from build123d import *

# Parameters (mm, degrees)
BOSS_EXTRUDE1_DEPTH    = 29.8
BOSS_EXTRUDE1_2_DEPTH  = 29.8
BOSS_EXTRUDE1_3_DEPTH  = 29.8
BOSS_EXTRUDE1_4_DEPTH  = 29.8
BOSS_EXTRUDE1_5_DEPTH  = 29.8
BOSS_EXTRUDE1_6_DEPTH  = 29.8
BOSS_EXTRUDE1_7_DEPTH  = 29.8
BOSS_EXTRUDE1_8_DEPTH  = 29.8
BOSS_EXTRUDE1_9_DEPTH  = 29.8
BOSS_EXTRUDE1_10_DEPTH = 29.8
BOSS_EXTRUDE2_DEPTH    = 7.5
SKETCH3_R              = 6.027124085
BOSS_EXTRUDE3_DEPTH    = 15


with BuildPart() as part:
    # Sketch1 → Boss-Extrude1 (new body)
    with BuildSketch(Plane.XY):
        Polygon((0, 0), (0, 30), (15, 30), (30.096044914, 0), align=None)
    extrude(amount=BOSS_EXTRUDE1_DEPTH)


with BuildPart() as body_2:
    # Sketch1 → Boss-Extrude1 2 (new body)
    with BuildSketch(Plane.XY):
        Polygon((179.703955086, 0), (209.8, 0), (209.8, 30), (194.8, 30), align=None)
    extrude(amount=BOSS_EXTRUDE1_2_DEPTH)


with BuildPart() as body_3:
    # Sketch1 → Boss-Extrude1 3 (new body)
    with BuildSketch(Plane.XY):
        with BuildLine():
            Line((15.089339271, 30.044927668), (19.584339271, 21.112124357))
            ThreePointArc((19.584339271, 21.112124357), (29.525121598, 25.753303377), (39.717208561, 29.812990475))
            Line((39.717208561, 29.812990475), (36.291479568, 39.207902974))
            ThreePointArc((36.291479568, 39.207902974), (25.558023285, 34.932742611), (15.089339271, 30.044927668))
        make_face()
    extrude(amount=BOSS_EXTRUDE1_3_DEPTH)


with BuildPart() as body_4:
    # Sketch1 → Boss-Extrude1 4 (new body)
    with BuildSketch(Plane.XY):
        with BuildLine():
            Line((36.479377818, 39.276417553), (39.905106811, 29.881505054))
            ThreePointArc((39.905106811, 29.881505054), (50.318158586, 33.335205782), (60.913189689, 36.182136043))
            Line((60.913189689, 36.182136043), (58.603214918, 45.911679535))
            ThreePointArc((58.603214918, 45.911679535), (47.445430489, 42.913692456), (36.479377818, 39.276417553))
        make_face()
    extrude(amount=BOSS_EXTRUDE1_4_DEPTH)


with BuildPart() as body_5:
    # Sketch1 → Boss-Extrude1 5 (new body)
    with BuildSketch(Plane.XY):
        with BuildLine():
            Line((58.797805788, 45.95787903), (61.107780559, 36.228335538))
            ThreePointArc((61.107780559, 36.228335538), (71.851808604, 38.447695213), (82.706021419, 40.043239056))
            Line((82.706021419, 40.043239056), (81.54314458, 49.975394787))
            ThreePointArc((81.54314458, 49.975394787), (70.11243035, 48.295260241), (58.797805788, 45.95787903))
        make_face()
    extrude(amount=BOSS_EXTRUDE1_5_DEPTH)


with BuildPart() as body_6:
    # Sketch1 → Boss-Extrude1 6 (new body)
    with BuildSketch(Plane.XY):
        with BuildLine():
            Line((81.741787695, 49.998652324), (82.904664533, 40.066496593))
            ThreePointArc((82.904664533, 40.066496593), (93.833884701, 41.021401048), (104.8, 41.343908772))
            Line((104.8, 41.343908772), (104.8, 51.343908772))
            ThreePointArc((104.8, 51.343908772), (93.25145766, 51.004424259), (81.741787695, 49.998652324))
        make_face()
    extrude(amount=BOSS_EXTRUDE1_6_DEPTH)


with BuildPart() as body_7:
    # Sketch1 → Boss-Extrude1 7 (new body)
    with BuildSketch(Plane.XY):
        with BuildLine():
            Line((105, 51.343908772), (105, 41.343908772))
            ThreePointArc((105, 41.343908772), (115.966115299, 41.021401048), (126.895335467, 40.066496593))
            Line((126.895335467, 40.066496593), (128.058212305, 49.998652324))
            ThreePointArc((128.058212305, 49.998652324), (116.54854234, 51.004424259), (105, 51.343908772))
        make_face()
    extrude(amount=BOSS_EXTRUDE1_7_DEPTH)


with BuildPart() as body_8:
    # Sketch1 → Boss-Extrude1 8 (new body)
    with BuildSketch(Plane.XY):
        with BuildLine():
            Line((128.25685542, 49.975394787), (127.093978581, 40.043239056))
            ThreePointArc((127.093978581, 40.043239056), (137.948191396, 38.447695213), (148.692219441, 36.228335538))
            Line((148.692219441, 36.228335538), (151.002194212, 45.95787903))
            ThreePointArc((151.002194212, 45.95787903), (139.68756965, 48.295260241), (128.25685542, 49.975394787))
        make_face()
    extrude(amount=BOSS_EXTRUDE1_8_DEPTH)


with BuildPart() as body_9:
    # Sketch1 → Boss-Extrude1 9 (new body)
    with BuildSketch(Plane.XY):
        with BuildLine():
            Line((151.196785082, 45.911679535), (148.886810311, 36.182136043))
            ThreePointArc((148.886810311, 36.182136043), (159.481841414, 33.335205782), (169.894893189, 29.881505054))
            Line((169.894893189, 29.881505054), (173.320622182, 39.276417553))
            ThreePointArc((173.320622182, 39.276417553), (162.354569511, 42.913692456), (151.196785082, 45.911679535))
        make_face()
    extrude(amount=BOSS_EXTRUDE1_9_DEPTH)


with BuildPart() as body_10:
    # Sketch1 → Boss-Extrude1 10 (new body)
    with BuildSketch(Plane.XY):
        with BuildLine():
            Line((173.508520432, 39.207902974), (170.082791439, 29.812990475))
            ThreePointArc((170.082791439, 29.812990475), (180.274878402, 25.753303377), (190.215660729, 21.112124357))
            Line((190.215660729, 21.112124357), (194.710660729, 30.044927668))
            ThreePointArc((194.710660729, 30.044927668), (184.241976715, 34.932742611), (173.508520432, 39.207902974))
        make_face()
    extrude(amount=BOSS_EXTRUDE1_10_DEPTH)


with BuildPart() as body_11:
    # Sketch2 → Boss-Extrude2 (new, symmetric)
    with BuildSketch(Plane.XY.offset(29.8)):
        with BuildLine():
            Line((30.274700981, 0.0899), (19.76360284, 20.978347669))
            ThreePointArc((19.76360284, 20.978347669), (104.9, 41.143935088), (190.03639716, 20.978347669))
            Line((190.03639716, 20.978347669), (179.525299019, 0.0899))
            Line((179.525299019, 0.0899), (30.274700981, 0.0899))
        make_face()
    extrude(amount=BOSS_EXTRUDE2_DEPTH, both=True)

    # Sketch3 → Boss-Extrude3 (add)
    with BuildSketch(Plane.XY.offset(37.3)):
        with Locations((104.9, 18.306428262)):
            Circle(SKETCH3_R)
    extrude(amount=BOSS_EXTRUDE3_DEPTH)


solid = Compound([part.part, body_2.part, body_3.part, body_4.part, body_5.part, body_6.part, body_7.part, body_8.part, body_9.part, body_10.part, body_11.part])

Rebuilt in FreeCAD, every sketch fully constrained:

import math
import FreeCAD as App
import Part
import Sketcher
Q = App.Units.Quantity


def add_polygon(sketch, points):
    """Adds a closed chain of lines whose ends are joined by coincident constraints."""
    first, n = sketch.GeometryCount, len(points)
    for a, b in zip(points, points[1:] + points[:1]):
        sketch.addGeometry(Part.LineSegment(App.Vector(*a, 0), App.Vector(*b, 0)), False)
    for i in range(n):
        sketch.addConstraint(Sketcher.Constraint("Coincident", first + i, 2, first + (i + 1) % n, 1))

doc = App.newDocument("Part")
body = doc.addObject("PartDesign::Body", "Body")

sketch1 = doc.addObject("Sketcher::SketchObject", "Sketch")
body.addObject(sketch1)
sketch1.AttachmentSupport = (doc.XY_Plane, [""])
sketch1.MapMode = "FlatFace"
add_polygon(sketch1, [(0, 30), (0, 0), (30, 0), (15, 30)])
sketch1.addConstraint(Sketcher.Constraint("Vertical", 0))
sketch1.addConstraint(Sketcher.Constraint("Horizontal", 1))
sketch1.addConstraint(Sketcher.Constraint("Horizontal", 3))
sketch1.addConstraint(Sketcher.Constraint("Coincident", 0, 2, -1, 1))
sketch1.addConstraint(Sketcher.Constraint("DistanceX", 3, 2, 3, 1, Q("15 mm")))
sketch1.addConstraint(Sketcher.Constraint("DistanceY", 0, 2, 0, 1, Q("30 mm")))
sketch1.addConstraint(Sketcher.Constraint("DistanceX", 1, 1, 1, 2, Q("30.096045 mm")))
pad1 = doc.addObject("PartDesign::Pad", "Pad")
body.addObject(pad1)
pad1.Profile = sketch1
pad1.Length = 29.8
body2 = doc.addObject("PartDesign::Body", "Body001")

sketch2 = doc.addObject("Sketcher::SketchObject", "Sketch001")
body2.addObject(sketch2)
sketch2.AttachmentSupport = (doc.getObject("XY_Plane001"), [""])
sketch2.MapMode = "FlatFace"
add_polygon(sketch2, [(180, 0), (210, 0), (210, 30), (195, 30)])
sketch2.addConstraint(Sketcher.Constraint("Horizontal", 0))
sketch2.addConstraint(Sketcher.Constraint("Vertical", 1))
sketch2.addConstraint(Sketcher.Constraint("Horizontal", 2))
sketch2.addConstraint(Sketcher.Constraint("PointOnObject", 0, 2, -1))
sketch2.addConstraint(Sketcher.Constraint("DistanceX", 2, 2, 2, 1, Q("15 mm")))
sketch2.addConstraint(Sketcher.Constraint("DistanceY", 1, 1, 1, 2, Q("30 mm")))
sketch2.addConstraint(Sketcher.Constraint("DistanceX", -1, 1, 0, 2, Q("209.8 mm")))
sketch2.addConstraint(Sketcher.Constraint("DistanceX", 0, 1, 0, 2, Q("30.096045 mm")))
pad2 = doc.addObject("PartDesign::Pad", "Pad001")
body2.addObject(pad2)
pad2.Profile = sketch2
pad2.Length = 29.8
body3 = doc.addObject("PartDesign::Body", "Body002")

sketch3 = doc.addObject("Sketcher::SketchObject", "Sketch002")
body3.addObject(sketch3)
sketch3.AttachmentSupport = (doc.getObject("XY_Plane002"), [""])
sketch3.MapMode = "FlatFace"
sketch3.addGeometry(Part.LineSegment(App.Vector(15, 30, 0), App.Vector(20, 21, 0)), False)
sketch3.addGeometry(Part.ArcOfCircle(Part.Circle(App.Vector(105, -149, 0), App.Vector(0, 0, 1), 190), math.radians(110.06), math.radians(116.68)), False)
sketch3.addGeometry(Part.LineSegment(App.Vector(40, 30, 0), App.Vector(36, 39, 0)), False)
sketch3.addGeometry(Part.ArcOfCircle(Part.Circle(App.Vector(105, -149, 0), App.Vector(0, 0, 1), 200), math.radians(110.06), math.radians(116.68)), False)
sketch3.addConstraint(Sketcher.Constraint("Coincident", 0, 2, 1, 2))
sketch3.addConstraint(Sketcher.Constraint("Coincident", 1, 1, 2, 1))
sketch3.addConstraint(Sketcher.Constraint("Coincident", 2, 2, 3, 1))
sketch3.addConstraint(Sketcher.Constraint("Coincident", 3, 2, 0, 1))
sketch3.addConstraint(Sketcher.Constraint("Coincident", 3, 3, 1, 3))
sketch3.addConstraint(Sketcher.Constraint("Radius", 1, Q("190.000001 mm")))
sketch3.addConstraint(Sketcher.Constraint("Radius", 3, Q("200 mm")))
sketch3.addConstraint(Sketcher.Constraint("DistanceX", -1, 1, 1, 3, Q("104.9 mm")))
sketch3.addConstraint(Sketcher.Constraint("DistanceX", 3, 2, 0, 2, Q("4.495 mm")))
sketch3.addConstraint(Sketcher.Constraint("DistanceX", -1, 1, 0, 2, Q("19.584339 mm")))
sketch3.addConstraint(Sketcher.Constraint("DistanceX", -1, 1, 1, 1, Q("39.717209 mm")))
sketch3.addConstraint(Sketcher.Constraint("DistanceY", -1, 1, 1, 1, Q("29.81299 mm")))
sketch3.addConstraint(Sketcher.Constraint("DistanceX", -1, 1, 2, 2, Q("36.29148 mm")))
pad3 = doc.addObject("PartDesign::Pad", "Pad002")
body3.addObject(pad3)
pad3.Profile = sketch3
pad3.Length = 29.8
body4 = doc.addObject("PartDesign::Body", "Body003")

sketch4 = doc.addObject("Sketcher::SketchObject", "Sketch003")
body4.addObject(sketch4)
sketch4.AttachmentSupport = (doc.getObject("XY_Plane003"), [""])
sketch4.MapMode = "FlatFace"
sketch4.addGeometry(Part.LineSegment(App.Vector(36, 39, 0), App.Vector(40, 30, 0)), False)
sketch4.addGeometry(Part.ArcOfCircle(Part.Circle(App.Vector(105, -149, 0), App.Vector(0, 0, 1), 190), math.radians(103.39), math.radians(110)), False)
sketch4.addGeometry(Part.LineSegment(App.Vector(61, 36, 0), App.Vector(59, 46, 0)), False)
sketch4.addGeometry(Part.ArcOfCircle(Part.Circle(App.Vector(105, -149, 0), App.Vector(0, 0, 1), 200), math.radians(103.38), math.radians(110.01)), False)
sketch4.addConstraint(Sketcher.Constraint("Coincident", 0, 2, 1, 2))
sketch4.addConstraint(Sketcher.Constraint("Coincident", 1, 1, 2, 1))
sketch4.addConstraint(Sketcher.Constraint("Coincident", 2, 2, 3, 1))
sketch4.addConstraint(Sketcher.Constraint("Coincident", 3, 2, 0, 1))
sketch4.addConstraint(Sketcher.Constraint("Coincident", 3, 3, 1, 3))
sketch4.addConstraint(Sketcher.Constraint("Radius", 1, Q("190.000001 mm")))
sketch4.addConstraint(Sketcher.Constraint("Radius", 3, Q("200 mm")))
sketch4.addConstraint(Sketcher.Constraint("DistanceX", -1, 1, 1, 3, Q("104.9 mm")))
sketch4.addConstraint(Sketcher.Constraint("DistanceX", -1, 1, 1, 1, Q("60.91319 mm")))
sketch4.addConstraint(Sketcher.Constraint("DistanceY", -1, 1, 2, 2, Q("45.91168 mm")))
sketch4.addConstraint(Sketcher.Constraint("DistanceY", 1, 3, 0, 2, Q("178.537571 mm")))
sketch4.addConstraint(Sketcher.Constraint("DistanceX", 0, 2, 2, 2, Q("18.698108 mm")))
sketch4.addConstraint(Sketcher.Constraint("DistanceX", 3, 2, 0, 2, Q("3.425729 mm")))
pad4 = doc.addObject("PartDesign::Pad", "Pad003")
body4.addObject(pad4)
pad4.Profile = sketch4
pad4.Length = 29.8
body5 = doc.addObject("PartDesign::Body", "Body004")

sketch5 = doc.addObject("Sketcher::SketchObject", "Sketch004")
body5.addObject(sketch5)
sketch5.AttachmentSupport = (doc.getObject("XY_Plane004"), [""])
sketch5.MapMode = "FlatFace"
sketch5.addGeometry(Part.LineSegment(App.Vector(59, 46, 0), App.Vector(61, 36, 0)), False)
sketch5.addGeometry(Part.ArcOfCircle(Part.Circle(App.Vector(105, -149, 0), App.Vector(0, 0, 1), 190), math.radians(96.71), math.radians(103.33)), False)
sketch5.addGeometry(Part.LineSegment(App.Vector(83, 40, 0), App.Vector(82, 50, 0)), False)
sketch5.addGeometry(Part.ArcOfCircle(Part.Circle(App.Vector(105, -149, 0), App.Vector(0, 0, 1), 200), math.radians(96.71), math.radians(103.33)), False)
sketch5.addConstraint(Sketcher.Constraint("Coincident", 0, 2, 1, 2))
sketch5.addConstraint(Sketcher.Constraint("Coincident", 1, 1, 2, 1))
sketch5.addConstraint(Sketcher.Constraint("Coincident", 2, 2, 3, 1))
sketch5.addConstraint(Sketcher.Constraint("Coincident", 3, 2, 0, 1))
sketch5.addConstraint(Sketcher.Constraint("Coincident", 3, 3, 1, 3))
sketch5.addConstraint(Sketcher.Constraint("Radius", 1, Q("190.000001 mm")))
sketch5.addConstraint(Sketcher.Constraint("Radius", 3, Q("200 mm")))
sketch5.addConstraint(Sketcher.Constraint("DistanceX", -1, 1, 1, 3, Q("104.9 mm")))
sketch5.addConstraint(Sketcher.Constraint("DistanceY", 3, 3, 0, 2, Q("184.884402 mm")))
sketch5.addConstraint(Sketcher.Constraint("DistanceX", -1, 1, 1, 1, Q("82.706021 mm")))
sketch5.addConstraint(Sketcher.Constraint("DistanceY", -1, 1, 1, 1, Q("40.043239 mm")))
sketch5.addConstraint(Sketcher.Constraint("DistanceY", -1, 1, 3, 2, Q("45.957879 mm")))
sketch5.addConstraint(Sketcher.Constraint("DistanceY", 0, 2, 2, 2, Q("13.747059 mm")))
pad5 = doc.addObject("PartDesign::Pad", "Pad004")
body5.addObject(pad5)
pad5.Profile = sketch5
pad5.Length = 29.8
body6 = doc.addObject("PartDesign::Body", "Body005")

sketch6 = doc.addObject("Sketcher::SketchObject", "Sketch005")
body6.addObject(sketch6)
sketch6.AttachmentSupport = (doc.getObject("XY_Plane005"), [""])
sketch6.MapMode = "FlatFace"
sketch6.addGeometry(Part.LineSegment(App.Vector(82, 50, 0), App.Vector(83, 40, 0)), False)
sketch6.addGeometry(Part.ArcOfCircle(Part.Circle(App.Vector(105, -149, 0), App.Vector(0, 0, 1), 190), math.radians(90.03), math.radians(96.65)), False)
sketch6.addGeometry(Part.LineSegment(App.Vector(105, 41, 0), App.Vector(105, 51, 0)), False)
sketch6.addGeometry(Part.ArcOfCircle(Part.Circle(App.Vector(105, -149, 0), App.Vector(0, 0, 1), 200), math.radians(90.03), math.radians(96.65)), False)
sketch6.addConstraint(Sketcher.Constraint("Coincident", 0, 2, 1, 2))
sketch6.addConstraint(Sketcher.Constraint("Coincident", 1, 1, 2, 1))
sketch6.addConstraint(Sketcher.Constraint("Coincident", 2, 2, 3, 1))
sketch6.addConstraint(Sketcher.Constraint("Coincident", 3, 2, 0, 1))
sketch6.addConstraint(Sketcher.Constraint("Vertical", 2))
sketch6.addConstraint(Sketcher.Constraint("Coincident", 3, 3, 1, 3))
sketch6.addConstraint(Sketcher.Constraint("Radius", 1, Q("190.000001 mm")))
sketch6.addConstraint(Sketcher.Constraint("Radius", 3, Q("200 mm")))
sketch6.addConstraint(Sketcher.Constraint("DistanceX", -1, 1, 1, 3, Q("104.9 mm")))
sketch6.addConstraint(Sketcher.Constraint("DistanceX", -1, 1, 1, 1, Q("104.8 mm")))
sketch6.addConstraint(Sketcher.Constraint("DistanceY", -1, 1, 1, 1, Q("41.343909 mm")))
sketch6.addConstraint(Sketcher.Constraint("DistanceY", 3, 3, 3, 2, Q("198.654718 mm")))
sketch6.addConstraint(Sketcher.Constraint("DistanceX", -1, 1, 0, 2, Q("82.904665 mm")))
pad6 = doc.addObject("PartDesign::Pad", "Pad005")
body6.addObject(pad6)
pad6.Profile = sketch6
pad6.Length = 29.8
body7 = doc.addObject("PartDesign::Body", "Body006")

sketch7 = doc.addObject("Sketcher::SketchObject", "Sketch006")
body7.addObject(sketch7)
sketch7.AttachmentSupport = (doc.getObject("XY_Plane006"), [""])
sketch7.MapMode = "FlatFace"
sketch7.addGeometry(Part.LineSegment(App.Vector(105, 51, 0), App.Vector(105, 41, 0)), False)
sketch7.addGeometry(Part.ArcOfCircle(Part.Circle(App.Vector(105, -149, 0), App.Vector(0, 0, 1), 190), math.radians(83.35), math.radians(89.97)), False)
sketch7.addGeometry(Part.LineSegment(App.Vector(127, 40, 0), App.Vector(128, 50, 0)), False)
sketch7.addGeometry(Part.ArcOfCircle(Part.Circle(App.Vector(105, -149, 0), App.Vector(0, 0, 1), 200), math.radians(83.35), math.radians(89.97)), False)
sketch7.addConstraint(Sketcher.Constraint("Coincident", 0, 2, 1, 2))
sketch7.addConstraint(Sketcher.Constraint("Coincident", 1, 1, 2, 1))
sketch7.addConstraint(Sketcher.Constraint("Coincident", 2, 2, 3, 1))
sketch7.addConstraint(Sketcher.Constraint("Coincident", 3, 2, 0, 1))
sketch7.addConstraint(Sketcher.Constraint("Vertical", 0))
sketch7.addConstraint(Sketcher.Constraint("Coincident", 3, 3, 1, 3))
sketch7.addConstraint(Sketcher.Constraint("Radius", 1, Q("190.000001 mm")))
sketch7.addConstraint(Sketcher.Constraint("Radius", 3, Q("200 mm")))
sketch7.addConstraint(Sketcher.Constraint("DistanceX", -1, 1, 0, 2, Q("105 mm")))
sketch7.addConstraint(Sketcher.Constraint("DistanceX", -1, 1, 1, 3, Q("104.9 mm")))
sketch7.addConstraint(Sketcher.Constraint("DistanceY", -1, 1, 0, 2, Q("41.343909 mm")))
sketch7.addConstraint(Sketcher.Constraint("DistanceY", 3, 3, 2, 2, Q("198.654718 mm")))
sketch7.addConstraint(Sketcher.Constraint("DistanceX", -1, 1, 1, 1, Q("126.895335 mm")))
pad7 = doc.addObject("PartDesign::Pad", "Pad006")
body7.addObject(pad7)
pad7.Profile = sketch7
pad7.Length = 29.8
body8 = doc.addObject("PartDesign::Body", "Body007")

sketch8 = doc.addObject("Sketcher::SketchObject", "Sketch007")
body8.addObject(sketch8)
sketch8.AttachmentSupport = (doc.getObject("XY_Plane007"), [""])
sketch8.MapMode = "FlatFace"
sketch8.addGeometry(Part.LineSegment(App.Vector(128, 50, 0), App.Vector(127, 40, 0)), False)
sketch8.addGeometry(Part.ArcOfCircle(Part.Circle(App.Vector(105, -149, 0), App.Vector(0, 0, 1), 190), math.radians(76.67), math.radians(83.29)), False)
sketch8.addGeometry(Part.LineSegment(App.Vector(149, 36, 0), App.Vector(151, 46, 0)), False)
sketch8.addGeometry(Part.ArcOfCircle(Part.Circle(App.Vector(105, -149, 0), App.Vector(0, 0, 1), 200), math.radians(76.67), math.radians(83.29)), False)
sketch8.addConstraint(Sketcher.Constraint("Coincident", 0, 2, 1, 2))
sketch8.addConstraint(Sketcher.Constraint("Coincident", 1, 1, 2, 1))
sketch8.addConstraint(Sketcher.Constraint("Coincident", 2, 2, 3, 1))
sketch8.addConstraint(Sketcher.Constraint("Coincident", 3, 2, 0, 1))
sketch8.addConstraint(Sketcher.Constraint("Coincident", 3, 3, 1, 3))
sketch8.addConstraint(Sketcher.Constraint("Radius", 1, Q("190.000001 mm")))
sketch8.addConstraint(Sketcher.Constraint("Radius", 3, Q("200 mm")))
sketch8.addConstraint(Sketcher.Constraint("DistanceX", -1, 1, 1, 3, Q("104.9 mm")))
sketch8.addConstraint(Sketcher.Constraint("DistanceY", 3, 3, 1, 1, Q("184.884402 mm")))
sketch8.addConstraint(Sketcher.Constraint("DistanceX", -1, 1, 0, 2, Q("127.093979 mm")))
sketch8.addConstraint(Sketcher.Constraint("DistanceY", -1, 1, 0, 2, Q("40.043239 mm")))
sketch8.addConstraint(Sketcher.Constraint("DistanceY", -1, 1, 2, 2, Q("45.957879 mm")))
sketch8.addConstraint(Sketcher.Constraint("DistanceX", 3, 2, 2, 2, Q("22.745339 mm")))
pad8 = doc.addObject("PartDesign::Pad", "Pad007")
body8.addObject(pad8)
pad8.Profile = sketch8
pad8.Length = 29.8
body9 = doc.addObject("PartDesign::Body", "Body008")

sketch9 = doc.addObject("Sketcher::SketchObject", "Sketch008")
body9.addObject(sketch9)
sketch9.AttachmentSupport = (doc.getObject("XY_Plane008"), [""])
sketch9.MapMode = "FlatFace"
sketch9.addGeometry(Part.LineSegment(App.Vector(151, 46, 0), App.Vector(149, 36, 0)), False)
sketch9.addGeometry(Part.ArcOfCircle(Part.Circle(App.Vector(105, -149, 0), App.Vector(0, 0, 1), 190), math.radians(70), math.radians(76.61)), False)
sketch9.addGeometry(Part.LineSegment(App.Vector(170, 30, 0), App.Vector(173, 39, 0)), False)
sketch9.addGeometry(Part.ArcOfCircle(Part.Circle(App.Vector(105, -149, 0), App.Vector(0, 0, 1), 200), math.radians(69.99), math.radians(76.62)), False)
sketch9.addConstraint(Sketcher.Constraint("Coincident", 0, 2, 1, 2))
sketch9.addConstraint(Sketcher.Constraint("Coincident", 1, 1, 2, 1))
sketch9.addConstraint(Sketcher.Constraint("Coincident", 2, 2, 3, 1))
sketch9.addConstraint(Sketcher.Constraint("Coincident", 3, 2, 0, 1))
sketch9.addConstraint(Sketcher.Constraint("Coincident", 3, 3, 1, 3))
sketch9.addConstraint(Sketcher.Constraint("Radius", 1, Q("190.000001 mm")))
sketch9.addConstraint(Sketcher.Constraint("Radius", 3, Q("200 mm")))
sketch9.addConstraint(Sketcher.Constraint("DistanceX", -1, 1, 1, 3, Q("104.9 mm")))
sketch9.addConstraint(Sketcher.Constraint("DistanceX", -1, 1, 0, 2, Q("148.88681 mm")))
sketch9.addConstraint(Sketcher.Constraint("DistanceY", -1, 1, 3, 2, Q("45.91168 mm")))
sketch9.addConstraint(Sketcher.Constraint("DistanceY", 1, 1, 0, 2, Q("6.300631 mm")))
sketch9.addConstraint(Sketcher.Constraint("DistanceX", 1, 1, 2, 2, Q("3.425729 mm")))
sketch9.addConstraint(Sketcher.Constraint("DistanceY", 2, 2, 3, 2, Q("6.635262 mm")))
pad9 = doc.addObject("PartDesign::Pad", "Pad008")
body9.addObject(pad9)
pad9.Profile = sketch9
pad9.Length = 29.8
body10 = doc.addObject("PartDesign::Body", "Body009")

sketch10 = doc.addObject("Sketcher::SketchObject", "Sketch009")
body10.addObject(sketch10)
sketch10.AttachmentSupport = (doc.getObject("XY_Plane009"), [""])
sketch10.MapMode = "FlatFace"
sketch10.addGeometry(Part.LineSegment(App.Vector(174, 39, 0), App.Vector(170, 30, 0)), False)
sketch10.addGeometry(Part.ArcOfCircle(Part.Circle(App.Vector(105, -149, 0), App.Vector(0, 0, 1), 190), math.radians(63.32), math.radians(69.94)), False)
sketch10.addGeometry(Part.LineSegment(App.Vector(190, 21, 0), App.Vector(195, 30, 0)), False)
sketch10.addGeometry(Part.ArcOfCircle(Part.Circle(App.Vector(105, -149, 0), App.Vector(0, 0, 1), 200), math.radians(63.32), math.radians(69.94)), False)
sketch10.addConstraint(Sketcher.Constraint("Coincident", 0, 2, 1, 2))
sketch10.addConstraint(Sketcher.Constraint("Coincident", 1, 1, 2, 1))
sketch10.addConstraint(Sketcher.Constraint("Coincident", 2, 2, 3, 1))
sketch10.addConstraint(Sketcher.Constraint("Coincident", 3, 2, 0, 1))
sketch10.addConstraint(Sketcher.Constraint("Coincident", 3, 3, 1, 3))
sketch10.addConstraint(Sketcher.Constraint("Radius", 1, Q("190.000001 mm")))
sketch10.addConstraint(Sketcher.Constraint("Radius", 3, Q("200 mm")))
sketch10.addConstraint(Sketcher.Constraint("DistanceX", -1, 1, 1, 3, Q("104.9 mm")))
sketch10.addConstraint(Sketcher.Constraint("DistanceX", 1, 1, 2, 2, Q("4.495 mm")))
sketch10.addConstraint(Sketcher.Constraint("DistanceX", -1, 1, 0, 2, Q("170.082791 mm")))
sketch10.addConstraint(Sketcher.Constraint("DistanceY", -1, 1, 0, 2, Q("29.81299 mm")))
sketch10.addConstraint(Sketcher.Constraint("DistanceX", -1, 1, 1, 1, Q("190.215661 mm")))
sketch10.addConstraint(Sketcher.Constraint("DistanceX", -1, 1, 3, 2, Q("173.50852 mm")))
pad10 = doc.addObject("PartDesign::Pad", "Pad009")
body10.addObject(pad10)
pad10.Profile = sketch10
pad10.Length = 29.8
body11 = doc.addObject("PartDesign::Body", "Body010")

sketch11 = doc.addObject("Sketcher::SketchObject", "Sketch010")
body11.addObject(sketch11)
sketch11.AttachmentSupport = (doc.getObject("XY_Plane010"), [""])
sketch11.MapMode = "FlatFace"
sketch11.AttachmentOffset = App.Placement(App.Vector(0, 0, 29.8), App.Rotation())
sketch11.addGeometry(Part.LineSegment(App.Vector(20, 21, 0), App.Vector(30, 0, 0)), False)
sketch11.addGeometry(Part.LineSegment(App.Vector(30, 0, 0), App.Vector(180, 0, 0)), False)
sketch11.addGeometry(Part.LineSegment(App.Vector(180, 0, 0), App.Vector(190, 21, 0)), False)
sketch11.addGeometry(Part.ArcOfCircle(Part.Circle(App.Vector(105, -149, 0), App.Vector(0, 0, 1), 190), math.radians(63), math.radians(117)), False)
sketch11.addConstraint(Sketcher.Constraint("Coincident", 0, 2, 1, 1))
sketch11.addConstraint(Sketcher.Constraint("Coincident", 1, 2, 2, 1))
sketch11.addConstraint(Sketcher.Constraint("Coincident", 2, 2, 3, 1))
sketch11.addConstraint(Sketcher.Constraint("Coincident", 3, 2, 0, 1))
sketch11.addConstraint(Sketcher.Constraint("Horizontal", 1))
sketch11.addConstraint(Sketcher.Constraint("Horizontal", 2, 2, 3, 2))
sketch11.addConstraint(Sketcher.Constraint("Equal", 0, 2))
sketch11.addConstraint(Sketcher.Constraint("Radius", 3, Q("189.800001 mm")))
sketch11.addConstraint(Sketcher.Constraint("DistanceX", -1, 1, 3, 3, Q("104.9 mm")))
sketch11.addConstraint(Sketcher.Constraint("DistanceX", 1, 1, 1, 2, Q("149.250598 mm")))
sketch11.addConstraint(Sketcher.Constraint("DistanceY", -1, 1, 0, 2, Q("0.0899 mm")))
sketch11.addConstraint(Sketcher.Constraint("DistanceX", 1, 2, 2, 2, Q("10.511098 mm")))
sketch11.addConstraint(Sketcher.Constraint("Distance", 0, Q("23.383978 mm")))
pad11 = doc.addObject("PartDesign::Pad", "Pad010")
body11.addObject(pad11)
pad11.Profile = sketch11
pad11.Length = 15
pad11.Midplane = True

sketch12 = doc.addObject("Sketcher::SketchObject", "Sketch011")
body11.addObject(sketch12)
sketch12.AttachmentSupport = (doc.getObject("XY_Plane010"), [""])
sketch12.MapMode = "FlatFace"
sketch12.AttachmentOffset = App.Placement(App.Vector(0, 0, 37.3), App.Rotation())
sketch12.addGeometry(Part.Circle(App.Vector(105, 18, 0), App.Vector(0, 0, 1), 6), False)
sketch12.addConstraint(Sketcher.Constraint("DistanceX", -1, 1, 0, 3, Q("104.9 mm")))
sketch12.addConstraint(Sketcher.Constraint("Diameter", 0, Q("12.054248 mm")))
sketch12.addConstraint(Sketcher.Constraint("DistanceY", -1, 1, 0, 3, Q("18.306428 mm")))
pad12 = doc.addObject("PartDesign::Pad", "Pad011")
body11.addObject(pad12)
pad12.Profile = sketch12
pad12.Length = 15

doc.recompute()
